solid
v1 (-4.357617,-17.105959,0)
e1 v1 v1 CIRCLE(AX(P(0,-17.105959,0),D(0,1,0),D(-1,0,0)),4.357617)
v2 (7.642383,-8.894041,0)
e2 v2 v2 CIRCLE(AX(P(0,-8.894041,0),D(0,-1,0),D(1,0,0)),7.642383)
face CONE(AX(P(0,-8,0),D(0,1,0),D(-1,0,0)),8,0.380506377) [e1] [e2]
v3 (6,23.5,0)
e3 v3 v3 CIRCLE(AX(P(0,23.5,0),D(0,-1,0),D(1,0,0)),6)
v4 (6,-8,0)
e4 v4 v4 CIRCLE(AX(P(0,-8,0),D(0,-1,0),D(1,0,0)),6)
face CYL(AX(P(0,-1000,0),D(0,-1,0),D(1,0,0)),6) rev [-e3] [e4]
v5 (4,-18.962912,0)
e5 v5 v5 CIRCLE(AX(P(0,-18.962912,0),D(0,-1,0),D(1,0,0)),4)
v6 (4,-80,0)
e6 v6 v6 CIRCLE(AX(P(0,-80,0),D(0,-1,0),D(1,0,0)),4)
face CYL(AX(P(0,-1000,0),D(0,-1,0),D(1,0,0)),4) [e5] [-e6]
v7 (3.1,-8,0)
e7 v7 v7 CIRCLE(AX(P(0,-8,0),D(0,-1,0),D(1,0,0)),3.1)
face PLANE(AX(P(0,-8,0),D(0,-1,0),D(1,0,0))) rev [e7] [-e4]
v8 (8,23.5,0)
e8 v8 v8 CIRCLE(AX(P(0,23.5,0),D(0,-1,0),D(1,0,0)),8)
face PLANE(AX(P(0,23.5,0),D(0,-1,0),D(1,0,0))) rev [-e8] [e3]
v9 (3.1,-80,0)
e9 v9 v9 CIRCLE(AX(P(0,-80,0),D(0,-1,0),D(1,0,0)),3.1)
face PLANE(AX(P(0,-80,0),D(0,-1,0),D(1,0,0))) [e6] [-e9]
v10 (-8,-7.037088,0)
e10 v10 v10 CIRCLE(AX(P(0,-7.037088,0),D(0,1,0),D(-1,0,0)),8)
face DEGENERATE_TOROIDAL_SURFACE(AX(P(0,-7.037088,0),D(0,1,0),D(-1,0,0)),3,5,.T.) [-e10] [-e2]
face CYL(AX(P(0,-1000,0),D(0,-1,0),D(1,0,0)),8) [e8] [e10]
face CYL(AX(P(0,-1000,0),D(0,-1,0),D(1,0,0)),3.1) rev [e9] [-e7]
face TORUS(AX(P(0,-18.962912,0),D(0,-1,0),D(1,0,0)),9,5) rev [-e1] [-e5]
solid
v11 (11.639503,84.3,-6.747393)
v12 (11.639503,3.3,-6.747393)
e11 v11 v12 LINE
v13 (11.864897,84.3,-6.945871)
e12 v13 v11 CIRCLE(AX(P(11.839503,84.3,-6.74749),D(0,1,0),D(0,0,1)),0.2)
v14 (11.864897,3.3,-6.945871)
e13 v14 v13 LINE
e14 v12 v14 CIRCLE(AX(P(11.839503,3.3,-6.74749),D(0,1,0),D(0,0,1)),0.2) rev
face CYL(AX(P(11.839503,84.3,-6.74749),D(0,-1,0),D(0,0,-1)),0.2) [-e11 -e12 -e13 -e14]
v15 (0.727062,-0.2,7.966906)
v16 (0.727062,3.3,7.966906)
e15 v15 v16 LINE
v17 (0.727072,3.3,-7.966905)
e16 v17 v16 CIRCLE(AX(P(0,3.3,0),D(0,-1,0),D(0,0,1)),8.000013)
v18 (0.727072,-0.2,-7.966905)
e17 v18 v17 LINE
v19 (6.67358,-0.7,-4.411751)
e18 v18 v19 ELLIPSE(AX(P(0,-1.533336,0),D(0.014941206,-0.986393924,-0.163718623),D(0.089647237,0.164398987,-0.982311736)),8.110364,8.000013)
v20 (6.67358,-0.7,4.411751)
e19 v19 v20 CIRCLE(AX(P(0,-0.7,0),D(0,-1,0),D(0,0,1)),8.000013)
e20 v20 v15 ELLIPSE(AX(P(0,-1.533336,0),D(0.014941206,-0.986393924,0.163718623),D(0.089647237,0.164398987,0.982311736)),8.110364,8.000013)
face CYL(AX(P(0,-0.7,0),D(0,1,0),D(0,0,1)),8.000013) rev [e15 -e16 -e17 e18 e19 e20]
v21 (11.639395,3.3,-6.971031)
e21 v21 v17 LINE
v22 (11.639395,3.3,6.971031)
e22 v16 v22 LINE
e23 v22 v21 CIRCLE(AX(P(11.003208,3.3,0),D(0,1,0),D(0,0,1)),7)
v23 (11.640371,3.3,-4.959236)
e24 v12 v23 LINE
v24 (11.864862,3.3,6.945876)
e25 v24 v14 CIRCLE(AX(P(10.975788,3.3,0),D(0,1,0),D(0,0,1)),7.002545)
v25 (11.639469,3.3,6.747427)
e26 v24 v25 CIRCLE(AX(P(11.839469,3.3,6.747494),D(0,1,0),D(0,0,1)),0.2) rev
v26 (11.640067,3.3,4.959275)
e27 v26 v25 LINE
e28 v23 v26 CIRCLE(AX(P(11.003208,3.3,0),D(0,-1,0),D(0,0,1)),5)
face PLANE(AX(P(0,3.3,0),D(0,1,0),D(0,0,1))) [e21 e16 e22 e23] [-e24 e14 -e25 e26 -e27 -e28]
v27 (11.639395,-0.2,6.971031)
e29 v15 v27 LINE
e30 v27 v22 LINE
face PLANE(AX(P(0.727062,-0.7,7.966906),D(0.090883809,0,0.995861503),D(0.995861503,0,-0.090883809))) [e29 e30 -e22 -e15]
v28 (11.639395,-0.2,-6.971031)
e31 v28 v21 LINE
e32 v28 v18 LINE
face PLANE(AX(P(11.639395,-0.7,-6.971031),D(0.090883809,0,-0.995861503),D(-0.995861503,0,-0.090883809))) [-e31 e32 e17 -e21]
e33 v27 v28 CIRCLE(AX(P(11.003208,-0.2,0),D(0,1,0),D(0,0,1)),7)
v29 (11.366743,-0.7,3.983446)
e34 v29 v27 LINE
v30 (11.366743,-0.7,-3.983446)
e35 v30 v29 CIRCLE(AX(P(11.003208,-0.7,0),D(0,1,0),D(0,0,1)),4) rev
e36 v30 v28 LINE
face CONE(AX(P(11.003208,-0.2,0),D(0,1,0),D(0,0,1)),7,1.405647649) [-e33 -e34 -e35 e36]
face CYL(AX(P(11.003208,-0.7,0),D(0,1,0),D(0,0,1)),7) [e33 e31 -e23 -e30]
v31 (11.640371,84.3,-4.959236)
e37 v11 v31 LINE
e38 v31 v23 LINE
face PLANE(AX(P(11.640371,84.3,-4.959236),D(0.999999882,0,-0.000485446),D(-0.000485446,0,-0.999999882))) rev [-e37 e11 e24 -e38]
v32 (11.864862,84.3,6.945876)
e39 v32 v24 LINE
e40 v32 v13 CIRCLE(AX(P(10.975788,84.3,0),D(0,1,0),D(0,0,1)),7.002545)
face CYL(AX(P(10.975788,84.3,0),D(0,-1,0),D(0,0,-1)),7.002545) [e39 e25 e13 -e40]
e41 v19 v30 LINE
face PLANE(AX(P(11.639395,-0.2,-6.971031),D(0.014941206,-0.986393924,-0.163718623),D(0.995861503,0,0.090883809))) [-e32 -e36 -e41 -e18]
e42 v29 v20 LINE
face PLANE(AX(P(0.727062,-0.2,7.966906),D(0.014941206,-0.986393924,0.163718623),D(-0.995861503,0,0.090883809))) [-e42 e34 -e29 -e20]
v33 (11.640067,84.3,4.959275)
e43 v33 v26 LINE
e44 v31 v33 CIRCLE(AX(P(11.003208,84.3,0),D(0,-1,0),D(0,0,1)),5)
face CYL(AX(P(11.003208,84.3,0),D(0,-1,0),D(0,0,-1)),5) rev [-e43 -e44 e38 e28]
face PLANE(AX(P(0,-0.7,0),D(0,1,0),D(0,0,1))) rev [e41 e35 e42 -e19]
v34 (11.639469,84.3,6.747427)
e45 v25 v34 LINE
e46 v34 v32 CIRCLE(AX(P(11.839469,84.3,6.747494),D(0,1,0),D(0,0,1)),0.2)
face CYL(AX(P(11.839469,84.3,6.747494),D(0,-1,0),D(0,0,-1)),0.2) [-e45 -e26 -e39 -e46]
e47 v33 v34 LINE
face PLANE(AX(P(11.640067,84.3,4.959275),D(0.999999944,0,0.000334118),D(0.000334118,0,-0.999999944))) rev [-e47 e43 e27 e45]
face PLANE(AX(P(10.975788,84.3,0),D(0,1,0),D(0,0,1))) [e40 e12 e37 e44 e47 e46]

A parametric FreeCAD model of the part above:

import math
import FreeCAD as App
import Part
import Sketcher
from FreeCAD import Vector
Q = App.Units.Quantity


def edges_at(feature, points):
    """Names of the edges that pass closest to the given points."""
    edges = feature.Shape.Edges
    near = lambda p: min(range(len(edges)), key=lambda i: edges[i].distToShape(Part.Vertex(*p))[0])
    return sorted({f"Edge{near(p) + 1}" for p in points})

doc = App.newDocument("Part")
body = doc.addObject("PartDesign::Body", "Body")

# Sketch on XY plane
sketch1 = body.newObject("Sketcher::SketchObject", "Sketch")
sketch1.AttachmentSupport = (doc.getObject("XY_Plane"), [""])
sketch1.MapMode = "FlatFace"
sketch1.addGeometry(Part.LineSegment(Vector(8, -8, 0), Vector(8, 23.5, 0)), False)
sketch1.addGeometry(Part.LineSegment(Vector(8, 23.5, 0), Vector(6, 23.5, 0)), False)
sketch1.addGeometry(Part.LineSegment(Vector(6, 23.5, 0), Vector(6, -8, 0)), False)
sketch1.addGeometry(Part.LineSegment(Vector(6, -8, 0), Vector(3.1, -8, 0)), False)
sketch1.addGeometry(Part.LineSegment(Vector(3.1, -8, 0), Vector(3.1, -80, 0)), False)
sketch1.addGeometry(Part.LineSegment(Vector(3.1, -80, 0), Vector(4, -80, 0)), False)
sketch1.addGeometry(Part.LineSegment(Vector(4, -80, 0), Vector(4, -18, 0)), False)
sketch1.addGeometry(Part.LineSegment(Vector(4, -18, 0), Vector(8, -8, 0)), False)
sketch1.addConstraint(Sketcher.Constraint("Coincident", 0, 2, 1, 1))
sketch1.addConstraint(Sketcher.Constraint("Coincident", 1, 2, 2, 1))
sketch1.addConstraint(Sketcher.Constraint("Coincident", 2, 2, 3, 1))
sketch1.addConstraint(Sketcher.Constraint("Coincident", 3, 2, 4, 1))
sketch1.addConstraint(Sketcher.Constraint("Coincident", 4, 2, 5, 1))
sketch1.addConstraint(Sketcher.Constraint("Coincident", 5, 2, 6, 1))
sketch1.addConstraint(Sketcher.Constraint("Coincident", 6, 2, 7, 1))
sketch1.addConstraint(Sketcher.Constraint("Coincident", 7, 2, 0, 1))
sketch1.addConstraint(Sketcher.Constraint("Vertical", 0))
sketch1.addConstraint(Sketcher.Constraint("Horizontal", 1))
sketch1.addConstraint(Sketcher.Constraint("Vertical", 2))
sketch1.addConstraint(Sketcher.Constraint("Horizontal", 3))
sketch1.addConstraint(Sketcher.Constraint("Vertical", 4))
sketch1.addConstraint(Sketcher.Constraint("Horizontal", 5))
sketch1.addConstraint(Sketcher.Constraint("Vertical", 6))
sketch1.addConstraint(Sketcher.Constraint("Horizontal", 3, 2, 7, 2))
sketch1.addConstraint(Sketcher.Constraint("DistanceX", 1, 2, 1, 1, Q("2 mm")))
sketch1.addConstraint(Sketcher.Constraint("DistanceY", 4, 2, 4, 1, Q("72 mm")))
sketch1.addConstraint(Sketcher.Constraint("DistanceY", 6, 1, 6, 2, Q("62 mm")))
sketch1.addConstraint(Sketcher.Constraint("DistanceX", 3, 2, 3, 1, Q("2.9 mm")))
sketch1.addConstraint(Sketcher.Constraint("DistanceX", 5, 1, 5, 2, Q("0.9 mm")))
sketch1.addConstraint(Sketcher.Constraint("DistanceY", 0, 1, 0, 2, Q("31.5 mm")))
sketch1.addConstraint(Sketcher.Constraint("DistanceX", -1, 1, 0, 2, Q("8 mm")))
sketch1.addConstraint(Sketcher.Constraint("DistanceY", 2, 2, -1, 1, Q("8 mm")))
revolution = body.newObject("PartDesign::Revolution", "Revolution")
revolution.Profile = sketch1
revolution.ReferenceAxis = (sketch1, ["V_Axis"])
revolution.Angle = 360
doc.recompute()

fillet = body.newObject("PartDesign::Fillet", "Fillet")
fillet.Base = (revolution, edges_at(revolution, [(-8, -8, 0), (-4, -18, 0)]))
fillet.Radius = 5
body2 = doc.addObject("PartDesign::Body", "Body001")

# Sketch on XZ plane
sketch2 = body2.newObject("Sketcher::SketchObject", "Sketch001")
sketch2.AttachmentSupport = (doc.getObject("XZ_Plane001"), [""])
sketch2.MapMode = "FlatFace"
sketch2.AttachmentOffset = App.Placement(Vector(0, 0, -3.3), App.Rotation())
sketch2.addGeometry(Part.LineSegment(Vector(12, -7, 0), Vector(1, -8, 0)), False)
sketch2.addGeometry(Part.ArcOfCircle(Part.Circle(Vector(0, 0, 0), Vector(0, 0, 1), 8), math.radians(-85), math.radians(85)), False)
sketch2.addGeometry(Part.LineSegment(Vector(1, 8, 0), Vector(12, 7, 0)), False)
sketch2.addGeometry(Part.ArcOfCircle(Part.Circle(Vector(11, 0, 0), Vector(0, 0, 1), 7), math.radians(-85), math.radians(85)), False)
sketch2.addConstraint(Sketcher.Constraint("Tangent", 0, 2, 1, 1))
sketch2.addConstraint(Sketcher.Constraint("Tangent", 1, 2, 2, 1))
sketch2.addConstraint(Sketcher.Constraint("Tangent", 2, 2, 3, 2))
sketch2.addConstraint(Sketcher.Constraint("Tangent", 3, 1, 0, 1))
sketch2.addConstraint(Sketcher.Constraint("Coincident", 1, 3, -1, 1))
sketch2.addConstraint(Sketcher.Constraint("PointOnObject", 3, 3, -1))
sketch2.addConstraint(Sketcher.Constraint("Radius", 3, Q("7 mm")))
sketch2.addConstraint(Sketcher.Constraint("Radius", 1, Q("8.000013 mm")))
sketch2.addConstraint(Sketcher.Constraint("Distance", 0, Q("10.957671 mm")))
pad1 = body2.newObject("PartDesign::Pad", "Pad")
pad1.Profile = sketch2
pad1.Length = 4
doc.recompute()

chamfer = body2.newObject("PartDesign::Chamfer", "Chamfer")
chamfer.Base = (pad1, edges_at(pad1, [(18.003, -0.7, 0), (6.183, -0.7, -7.469), (6.183, -0.7, 7.469)]))
chamfer.ChamferType = "Two distances"
chamfer.Size = 3
chamfer.Size2 = 0.5
chamfer.FlipDirection = True

# Sketch on XZ plane
sketch3 = body2.newObject("Sketcher::SketchObject", "Sketch002")
sketch3.AttachmentSupport = (doc.getObject("XZ_Plane001"), [""])
sketch3.MapMode = "FlatFace"
sketch3.AttachmentOffset = App.Placement(Vector(0, 0, -3.3), App.Rotation())
sketch3.addGeometry(Part.LineSegment(Vector(11.6, -7, 0), Vector(11.6, -5, 0)), False)
sketch3.addGeometry(Part.ArcOfCircle(Part.Circle(Vector(11, 0, 0), Vector(0, 0, 1), 5), math.radians(-83), math.radians(83)), False)
sketch3.addGeometry(Part.LineSegment(Vector(11.6, 5, 0), Vector(11.6, 7, 0)), False)
sketch3.addGeometry(Part.ArcOfCircle(Part.Circle(Vector(11, 0, 0), Vector(0, 0, 1), 7), math.radians(-85), math.radians(85)), False)
sketch3.addConstraint(Sketcher.Constraint("Coincident", 0, 2, 1, 1))
sketch3.addConstraint(Sketcher.Constraint("Coincident", 1, 2, 2, 1))
sketch3.addConstraint(Sketcher.Constraint("Coincident", 2, 2, 3, 2))
sketch3.addConstraint(Sketcher.Constraint("Coincident", 3, 1, 0, 1))
sketch3.addConstraint(Sketcher.Constraint("Symmetric", 2, 2, 3, 1, -1))
sketch3.addConstraint(Sketcher.Constraint("PointOnObject", 1, 3, -1))
sketch3.addConstraint(Sketcher.Constraint("Radius", 1, Q("5 mm")))
sketch3.addConstraint(Sketcher.Constraint("Radius", 3, Q("7.002545 mm")))
sketch3.addConstraint(Sketcher.Constraint("DistanceX", -1, 1, 3, 3, Q("10.975788 mm")))
sketch3.addConstraint(Sketcher.Constraint("DistanceX", -1, 1, 0, 2, Q("11.640371 mm")))
sketch3.addConstraint(Sketcher.Constraint("DistanceY", -1, 1, 2, 2, Q("6.971031 mm")))
sketch3.addConstraint(Sketcher.Constraint("DistanceX", 3, 3, 1, 3, Q("0.02742 mm")))
sketch3.addConstraint(Sketcher.Constraint("DistanceX", 1, 3, 1, 2, Q("0.636859 mm")))
pad2 = body2.newObject("PartDesign::Pad", "Pad001")
pad2.Profile = sketch3
pad2.Length = 81
pad2.Reversed = True
doc.recompute()

fillet2 = body2.newObject("PartDesign::Fillet", "Fillet001")
fillet2.Base = (pad2, edges_at(pad2, [(11.639, 43.8, 6.971), (11.639, 43.8, -6.971)]))
fillet2.Radius = 0.2

doc.recompute()
